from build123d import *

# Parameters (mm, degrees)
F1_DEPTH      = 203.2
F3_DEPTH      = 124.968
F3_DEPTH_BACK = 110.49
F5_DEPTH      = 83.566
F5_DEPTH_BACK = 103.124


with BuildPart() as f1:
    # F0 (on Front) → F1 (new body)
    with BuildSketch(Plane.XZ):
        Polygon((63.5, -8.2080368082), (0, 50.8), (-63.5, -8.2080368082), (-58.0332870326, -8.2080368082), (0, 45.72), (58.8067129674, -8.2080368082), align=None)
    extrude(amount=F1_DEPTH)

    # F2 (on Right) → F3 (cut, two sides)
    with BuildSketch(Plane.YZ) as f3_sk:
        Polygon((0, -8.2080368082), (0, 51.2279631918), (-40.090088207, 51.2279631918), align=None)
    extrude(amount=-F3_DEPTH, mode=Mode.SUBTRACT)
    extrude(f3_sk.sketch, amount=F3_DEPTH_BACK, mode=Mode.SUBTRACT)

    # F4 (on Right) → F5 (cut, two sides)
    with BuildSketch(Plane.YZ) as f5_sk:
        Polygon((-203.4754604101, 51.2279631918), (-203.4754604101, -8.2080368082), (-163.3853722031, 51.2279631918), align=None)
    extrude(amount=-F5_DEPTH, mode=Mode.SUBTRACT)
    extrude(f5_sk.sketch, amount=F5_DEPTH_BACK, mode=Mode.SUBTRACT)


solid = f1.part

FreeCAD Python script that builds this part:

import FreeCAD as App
import Part
import Sketcher
from FreeCAD import Vector
Q = App.Units.Quantity


def add_polygon(sketch, points):
    """Adds a closed chain of lines whose ends are joined by coincident constraints."""
    first, n = sketch.GeometryCount, len(points)
    for a, b in zip(points, points[1:] + points[:1]):
        sketch.addGeometry(Part.LineSegment(App.Vector(*a, 0), App.Vector(*b, 0)), False)
    for i in range(n):
        sketch.addConstraint(Sketcher.Constraint("Coincident", first + i, 2, first + (i + 1) % n, 1))

doc = App.newDocument("Part")
body = doc.addObject("PartDesign::Body", "Body")

# Sketch on XZ plane
sketch1 = body.newObject("Sketcher::SketchObject", "Sketch")
sketch1.AttachmentSupport = (doc.getObject("XZ_Plane"), [""])
sketch1.MapMode = "FlatFace"
add_polygon(sketch1, [(63.5, -8.2), (0, 50.8), (-63.5, -8.2), (-58, -8.2), (0, 45.7), (58.8, -8.2)])  # lines 0-5
sketch1.addConstraint([
    Sketcher.Constraint("Horizontal", 2),
    Sketcher.Constraint("Horizontal", 5),
    Sketcher.Constraint("Symmetric", 1, 2, 5, 2, -2),
    Sketcher.Constraint("PointOnObject", 0, 2, -2),
    Sketcher.Constraint("PointOnObject", 3, 2, -2),
    Sketcher.Constraint("Parallel", 1, 3),
    Sketcher.Constraint("DistanceY", -1, 1, 0, 2, Q("2 in")),
    Sketcher.Constraint("DistanceX", 1, 2, 5, 2, Q("5 in")),
    Sketcher.Constraint("DistanceY", -1, 1, 3, 2, Q("1.8 in")),
    Sketcher.Constraint("DistanceX", 2, 2, 4, 2, Q("4.6 in")),
    Sketcher.Constraint("DistanceX", 2, 1, 2, 2, Q("5.466713 mm")),
])
pad1 = body.newObject("PartDesign::Pad", "Pad")
pad1.Profile = sketch1
pad1.Length = Q("8 in")

# Sketch on YZ plane
sketch2 = body.newObject("Sketcher::SketchObject", "Sketch001")
sketch2.AttachmentSupport = (doc.getObject("YZ_Plane"), [""])
sketch2.MapMode = "FlatFace"
add_polygon(sketch2, [(0, -8), (0, 51), (-40, 51)])  # lines 0-2
sketch2.addConstraint([
    Sketcher.Constraint("Vertical", 0),
    Sketcher.Constraint("Horizontal", 1),
    Sketcher.Constraint("PointOnObject", 0, 2, -2),
    Sketcher.Constraint("Angle", 2, Q("-56 deg")),
    Sketcher.Constraint("DistanceY", 0, 1, 0, 2, Q("2.34 in")),
    Sketcher.Constraint("DistanceY", -1, 1, 0, 2, Q("51.227963 mm")),
])
pocket1 = body.newObject("PartDesign::Pocket", "Pocket")
pocket1.Profile = sketch2
pocket1.Type = "ThroughAll"
pocket1.Midplane = True

# Sketch on YZ plane
sketch3 = body.newObject("Sketcher::SketchObject", "Sketch002")
sketch3.AttachmentSupport = (doc.getObject("YZ_Plane"), [""])
sketch3.MapMode = "FlatFace"
add_polygon(sketch3, [(-203, 51), (-203, -8), (-163, 51)])  # lines 0-2
sketch3.addConstraint([
    Sketcher.Constraint("Vertical", 0),
    Sketcher.Constraint("Horizontal", 2),
    Sketcher.Constraint("Angle", 1, Q("56 deg")),
    Sketcher.Constraint("DistanceY", 0, 2, 0, 1, Q("2.34 in")),
    Sketcher.Constraint("DistanceX", 0, 2, -1, 1, Q("203.47546 mm")),
    Sketcher.Constraint("DistanceY", 0, 2, -1, 1, Q("8.208037 mm")),
])
pocket2 = body.newObject("PartDesign::Pocket", "Pocket001")
pocket2.Profile = sketch3
pocket2.Type = "ThroughAll"
pocket2.Midplane = True

doc.recompute()
